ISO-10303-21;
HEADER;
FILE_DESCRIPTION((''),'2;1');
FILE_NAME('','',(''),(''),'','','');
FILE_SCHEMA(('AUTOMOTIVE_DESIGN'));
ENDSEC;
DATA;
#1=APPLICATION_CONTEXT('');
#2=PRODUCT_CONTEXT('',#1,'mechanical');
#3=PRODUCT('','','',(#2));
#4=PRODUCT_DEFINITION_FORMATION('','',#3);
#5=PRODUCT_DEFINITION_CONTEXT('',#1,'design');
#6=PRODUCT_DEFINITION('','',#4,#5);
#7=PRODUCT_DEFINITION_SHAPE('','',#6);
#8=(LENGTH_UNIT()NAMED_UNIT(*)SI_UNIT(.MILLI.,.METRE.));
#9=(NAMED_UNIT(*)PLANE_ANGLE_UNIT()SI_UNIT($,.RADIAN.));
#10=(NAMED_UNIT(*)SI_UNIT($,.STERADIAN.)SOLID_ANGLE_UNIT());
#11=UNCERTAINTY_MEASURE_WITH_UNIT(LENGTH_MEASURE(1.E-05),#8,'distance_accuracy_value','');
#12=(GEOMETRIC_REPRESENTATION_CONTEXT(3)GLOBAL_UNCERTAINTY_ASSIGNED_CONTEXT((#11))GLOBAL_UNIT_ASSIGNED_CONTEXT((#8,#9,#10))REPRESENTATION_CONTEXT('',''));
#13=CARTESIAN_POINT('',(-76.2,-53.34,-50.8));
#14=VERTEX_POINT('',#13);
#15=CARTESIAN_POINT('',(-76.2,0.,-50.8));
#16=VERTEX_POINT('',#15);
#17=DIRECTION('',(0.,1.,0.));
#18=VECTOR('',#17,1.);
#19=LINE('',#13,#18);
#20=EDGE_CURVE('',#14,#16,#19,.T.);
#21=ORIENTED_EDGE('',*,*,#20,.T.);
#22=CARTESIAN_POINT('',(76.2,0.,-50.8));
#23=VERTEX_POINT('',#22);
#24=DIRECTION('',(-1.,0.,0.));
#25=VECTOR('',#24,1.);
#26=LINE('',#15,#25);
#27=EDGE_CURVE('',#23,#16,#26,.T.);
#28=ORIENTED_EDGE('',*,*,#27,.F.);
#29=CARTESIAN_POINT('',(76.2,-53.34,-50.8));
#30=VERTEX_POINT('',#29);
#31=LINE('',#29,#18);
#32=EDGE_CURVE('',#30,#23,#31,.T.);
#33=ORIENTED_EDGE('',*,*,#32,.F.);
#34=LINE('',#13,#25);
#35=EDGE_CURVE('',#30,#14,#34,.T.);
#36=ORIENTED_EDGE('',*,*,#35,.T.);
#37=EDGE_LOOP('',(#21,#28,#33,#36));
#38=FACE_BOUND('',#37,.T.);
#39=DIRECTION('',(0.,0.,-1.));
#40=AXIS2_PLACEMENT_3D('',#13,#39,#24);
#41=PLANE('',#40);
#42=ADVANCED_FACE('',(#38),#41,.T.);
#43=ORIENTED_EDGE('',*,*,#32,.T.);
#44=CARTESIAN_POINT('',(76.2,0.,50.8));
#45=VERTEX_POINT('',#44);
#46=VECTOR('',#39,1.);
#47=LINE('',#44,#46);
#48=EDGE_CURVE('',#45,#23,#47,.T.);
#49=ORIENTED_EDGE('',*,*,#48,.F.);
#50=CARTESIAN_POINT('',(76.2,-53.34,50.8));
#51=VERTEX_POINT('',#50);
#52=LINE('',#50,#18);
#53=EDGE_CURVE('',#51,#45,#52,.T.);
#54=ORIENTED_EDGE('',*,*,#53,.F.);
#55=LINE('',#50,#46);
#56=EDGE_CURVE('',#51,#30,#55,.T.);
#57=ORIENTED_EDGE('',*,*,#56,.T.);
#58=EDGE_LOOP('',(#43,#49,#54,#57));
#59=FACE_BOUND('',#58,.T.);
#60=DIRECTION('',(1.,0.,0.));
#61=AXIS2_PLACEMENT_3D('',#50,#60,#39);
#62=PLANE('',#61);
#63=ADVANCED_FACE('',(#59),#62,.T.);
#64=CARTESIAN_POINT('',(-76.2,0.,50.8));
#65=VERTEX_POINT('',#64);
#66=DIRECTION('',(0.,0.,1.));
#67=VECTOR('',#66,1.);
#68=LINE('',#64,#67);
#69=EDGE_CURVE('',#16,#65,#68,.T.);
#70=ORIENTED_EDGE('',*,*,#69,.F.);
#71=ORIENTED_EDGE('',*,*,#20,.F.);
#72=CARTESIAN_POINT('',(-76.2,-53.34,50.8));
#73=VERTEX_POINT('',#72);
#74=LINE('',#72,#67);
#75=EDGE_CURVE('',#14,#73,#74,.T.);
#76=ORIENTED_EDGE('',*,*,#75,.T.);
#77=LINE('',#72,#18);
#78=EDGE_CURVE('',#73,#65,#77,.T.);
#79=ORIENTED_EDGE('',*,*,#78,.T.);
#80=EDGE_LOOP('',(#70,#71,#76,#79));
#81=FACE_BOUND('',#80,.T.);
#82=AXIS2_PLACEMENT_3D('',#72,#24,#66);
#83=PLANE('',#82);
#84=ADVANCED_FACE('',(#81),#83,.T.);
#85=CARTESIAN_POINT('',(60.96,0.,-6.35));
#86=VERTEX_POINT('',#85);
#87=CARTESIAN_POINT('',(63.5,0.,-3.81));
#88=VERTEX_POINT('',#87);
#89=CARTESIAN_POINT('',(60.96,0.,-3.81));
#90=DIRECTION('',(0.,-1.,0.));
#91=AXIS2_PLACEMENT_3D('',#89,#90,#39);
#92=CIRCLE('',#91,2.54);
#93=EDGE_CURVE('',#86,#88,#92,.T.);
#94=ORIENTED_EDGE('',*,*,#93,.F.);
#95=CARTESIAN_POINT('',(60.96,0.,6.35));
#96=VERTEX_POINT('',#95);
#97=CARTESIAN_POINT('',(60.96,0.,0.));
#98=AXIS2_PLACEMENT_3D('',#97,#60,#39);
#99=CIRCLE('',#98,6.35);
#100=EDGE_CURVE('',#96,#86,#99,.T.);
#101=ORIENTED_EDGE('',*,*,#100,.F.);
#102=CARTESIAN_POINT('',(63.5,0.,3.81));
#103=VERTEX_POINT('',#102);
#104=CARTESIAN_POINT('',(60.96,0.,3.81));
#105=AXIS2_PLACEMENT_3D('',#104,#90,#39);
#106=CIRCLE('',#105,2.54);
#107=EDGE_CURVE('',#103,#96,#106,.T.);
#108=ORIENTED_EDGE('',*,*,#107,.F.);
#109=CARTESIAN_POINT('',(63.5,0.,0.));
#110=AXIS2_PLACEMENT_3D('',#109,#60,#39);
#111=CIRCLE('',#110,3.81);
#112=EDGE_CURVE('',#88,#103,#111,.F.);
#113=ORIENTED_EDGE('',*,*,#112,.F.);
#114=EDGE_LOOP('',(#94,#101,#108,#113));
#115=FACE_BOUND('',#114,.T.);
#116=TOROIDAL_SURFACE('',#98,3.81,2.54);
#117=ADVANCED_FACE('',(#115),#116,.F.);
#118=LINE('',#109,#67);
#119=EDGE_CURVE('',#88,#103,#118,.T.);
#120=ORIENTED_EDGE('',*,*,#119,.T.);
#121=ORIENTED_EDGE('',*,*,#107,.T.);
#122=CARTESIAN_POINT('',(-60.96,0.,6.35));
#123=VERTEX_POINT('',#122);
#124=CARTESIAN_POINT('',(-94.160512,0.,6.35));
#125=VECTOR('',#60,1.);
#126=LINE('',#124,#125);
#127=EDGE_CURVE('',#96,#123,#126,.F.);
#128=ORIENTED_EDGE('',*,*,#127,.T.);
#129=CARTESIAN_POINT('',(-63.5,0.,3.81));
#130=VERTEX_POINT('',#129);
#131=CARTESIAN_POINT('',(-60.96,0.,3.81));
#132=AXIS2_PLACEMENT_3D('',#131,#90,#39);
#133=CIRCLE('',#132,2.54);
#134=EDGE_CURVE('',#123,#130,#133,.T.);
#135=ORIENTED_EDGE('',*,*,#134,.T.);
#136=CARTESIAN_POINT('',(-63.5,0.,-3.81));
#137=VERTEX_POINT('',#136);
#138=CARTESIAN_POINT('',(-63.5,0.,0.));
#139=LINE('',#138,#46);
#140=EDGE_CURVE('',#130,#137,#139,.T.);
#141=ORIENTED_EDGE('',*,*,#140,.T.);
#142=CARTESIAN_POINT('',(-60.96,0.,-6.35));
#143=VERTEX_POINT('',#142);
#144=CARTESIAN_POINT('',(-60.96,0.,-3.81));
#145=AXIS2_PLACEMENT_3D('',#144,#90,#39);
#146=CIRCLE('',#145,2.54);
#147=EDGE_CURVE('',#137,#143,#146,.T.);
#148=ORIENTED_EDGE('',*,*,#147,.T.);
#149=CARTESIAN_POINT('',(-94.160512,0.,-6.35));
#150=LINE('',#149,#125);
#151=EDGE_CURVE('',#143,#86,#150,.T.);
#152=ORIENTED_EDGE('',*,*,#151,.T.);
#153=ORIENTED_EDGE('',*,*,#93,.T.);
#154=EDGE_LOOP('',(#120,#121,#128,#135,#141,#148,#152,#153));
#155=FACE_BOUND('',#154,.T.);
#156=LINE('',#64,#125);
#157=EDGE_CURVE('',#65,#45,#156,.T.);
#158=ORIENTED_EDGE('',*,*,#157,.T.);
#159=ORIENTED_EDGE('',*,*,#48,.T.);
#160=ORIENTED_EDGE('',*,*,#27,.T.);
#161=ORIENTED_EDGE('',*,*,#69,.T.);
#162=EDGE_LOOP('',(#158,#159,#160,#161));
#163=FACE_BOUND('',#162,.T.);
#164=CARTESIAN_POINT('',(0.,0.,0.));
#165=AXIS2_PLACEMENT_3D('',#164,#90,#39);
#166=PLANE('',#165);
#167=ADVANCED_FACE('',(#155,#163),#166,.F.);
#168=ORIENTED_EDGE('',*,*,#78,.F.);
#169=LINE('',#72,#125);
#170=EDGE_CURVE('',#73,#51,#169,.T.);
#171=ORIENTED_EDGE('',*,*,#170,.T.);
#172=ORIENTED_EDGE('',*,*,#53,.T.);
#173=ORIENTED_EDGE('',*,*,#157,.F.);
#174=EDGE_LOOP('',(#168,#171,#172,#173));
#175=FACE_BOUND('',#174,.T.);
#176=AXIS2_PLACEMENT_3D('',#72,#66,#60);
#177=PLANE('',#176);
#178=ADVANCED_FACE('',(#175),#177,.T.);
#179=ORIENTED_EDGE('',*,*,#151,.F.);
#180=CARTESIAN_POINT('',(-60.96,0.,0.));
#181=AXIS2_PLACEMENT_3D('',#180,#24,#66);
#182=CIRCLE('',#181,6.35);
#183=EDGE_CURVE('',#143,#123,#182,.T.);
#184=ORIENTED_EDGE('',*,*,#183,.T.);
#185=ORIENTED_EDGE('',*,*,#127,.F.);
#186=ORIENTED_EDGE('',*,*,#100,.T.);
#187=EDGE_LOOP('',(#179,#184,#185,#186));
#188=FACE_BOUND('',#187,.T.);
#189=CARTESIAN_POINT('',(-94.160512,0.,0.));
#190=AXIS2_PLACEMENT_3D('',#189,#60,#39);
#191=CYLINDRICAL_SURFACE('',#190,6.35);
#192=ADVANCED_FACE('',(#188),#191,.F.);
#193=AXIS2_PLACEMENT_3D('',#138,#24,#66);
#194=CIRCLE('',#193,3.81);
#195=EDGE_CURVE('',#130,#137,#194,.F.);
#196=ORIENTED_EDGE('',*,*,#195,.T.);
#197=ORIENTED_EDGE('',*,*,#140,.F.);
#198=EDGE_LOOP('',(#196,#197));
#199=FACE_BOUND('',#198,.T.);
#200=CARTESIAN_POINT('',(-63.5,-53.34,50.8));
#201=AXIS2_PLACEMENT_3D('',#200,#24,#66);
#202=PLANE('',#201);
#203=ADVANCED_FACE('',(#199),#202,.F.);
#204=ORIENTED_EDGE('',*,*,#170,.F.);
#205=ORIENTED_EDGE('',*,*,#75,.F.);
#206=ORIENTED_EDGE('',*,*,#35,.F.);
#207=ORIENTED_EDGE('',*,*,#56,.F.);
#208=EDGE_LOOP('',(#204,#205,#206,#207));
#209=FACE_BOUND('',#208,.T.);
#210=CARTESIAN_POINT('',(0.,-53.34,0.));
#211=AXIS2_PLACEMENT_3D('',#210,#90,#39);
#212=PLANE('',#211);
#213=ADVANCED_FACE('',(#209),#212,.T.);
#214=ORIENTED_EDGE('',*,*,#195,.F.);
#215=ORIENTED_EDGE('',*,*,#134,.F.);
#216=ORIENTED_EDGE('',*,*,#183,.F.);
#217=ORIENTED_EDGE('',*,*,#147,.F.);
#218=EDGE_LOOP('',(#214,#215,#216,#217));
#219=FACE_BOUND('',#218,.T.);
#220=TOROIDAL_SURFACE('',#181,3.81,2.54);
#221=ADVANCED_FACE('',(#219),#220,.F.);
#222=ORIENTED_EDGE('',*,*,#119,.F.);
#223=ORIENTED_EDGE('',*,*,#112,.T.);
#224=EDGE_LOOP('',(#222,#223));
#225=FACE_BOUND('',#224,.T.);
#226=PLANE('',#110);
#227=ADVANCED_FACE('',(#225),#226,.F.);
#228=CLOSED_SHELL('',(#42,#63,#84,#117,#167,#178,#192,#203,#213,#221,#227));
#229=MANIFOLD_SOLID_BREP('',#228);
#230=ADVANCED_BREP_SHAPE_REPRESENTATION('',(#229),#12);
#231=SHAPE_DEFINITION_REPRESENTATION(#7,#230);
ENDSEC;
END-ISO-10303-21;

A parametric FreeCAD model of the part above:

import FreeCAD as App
import Part
import Sketcher

V = App.Vector
Q = App.Units.Quantity


def edges_at(feature, points):
    """Names of the edges that pass closest to the given points."""
    edges = feature.Shape.Edges
    near = lambda p: min(range(len(edges)), key=lambda i: edges[i].distToShape(Part.Vertex(*p))[0])
    return sorted({f"Edge{near(p) + 1}" for p in points})


def add_polygon(sketch, points):
    """Adds a closed chain of lines whose ends are joined by coincident constraints."""
    first, n = sketch.GeometryCount, len(points)
    for a, b in zip(points, points[1:] + points[:1]):
        sketch.addGeometry(Part.LineSegment(App.Vector(*a, 0), App.Vector(*b, 0)), False)
    for i in range(n):
        sketch.addConstraint(Sketcher.Constraint("Coincident", first + i, 2, first + (i + 1) % n, 1))

doc = App.newDocument("Part")
body = doc.addObject("PartDesign::Body", "Body")

# Sketch on XZ plane
sketch1 = body.newObject("Sketcher::SketchObject", "Sketch")
sketch1.AttachmentSupport = (doc.getObject("XZ_Plane"), [""])
sketch1.MapMode = "FlatFace"
add_polygon(sketch1, [(-76, -51), (-76, 51), (76, 51), (76, -51)])  # lines 0-3
sketch1.addConstraint(Sketcher.Constraint("Vertical", 0))
sketch1.addConstraint(Sketcher.Constraint("Horizontal", 1))
sketch1.addConstraint(Sketcher.Constraint("Vertical", 2))
sketch1.addConstraint(Sketcher.Constraint("Horizontal", 3))
sketch1.addConstraint(Sketcher.Constraint("Symmetric", 0, 2, 2, 2, -1, 1))
sketch1.addConstraint(Sketcher.Constraint("DistanceX", 1, 1, 1, 2, Q("6 in")))
sketch1.addConstraint(Sketcher.Constraint("DistanceY", 0, 1, 0, 2, Q("4 in")))
pad1 = body.newObject("PartDesign::Pad", "Pad")
pad1.Profile = sketch1
pad1.Length = Q("2.1 in")

# Sketch on YZ plane
sketch2 = body.newObject("Sketcher::SketchObject", "Sketch001")
sketch2.AttachmentSupport = (doc.getObject("YZ_Plane"), [""])
sketch2.MapMode = "FlatFace"
sketch2.AttachmentOffset = App.Placement(V(0, 0, 2.5 * 25.4), App.Rotation())
sketch2.addGeometry(Part.Circle(V(0, 0, 0), V(0, 0, 1), 6), False)
sketch2.addConstraint(Sketcher.Constraint("Coincident", 0, 3, -1, 1))
sketch2.addConstraint(Sketcher.Constraint("Diameter", 0, Q("0.5 in")))
pocket1 = body.newObject("PartDesign::Pocket", "Pocket")
pocket1.Profile = sketch2
pocket1.Length = Q("5 in")
doc.recompute()

fillet = body.newObject("PartDesign::Fillet", "Fillet")
fillet.Base = (pocket1, edges_at(pocket1, [(63.5, -6.35, 0), (-63.5, -6.35, 0)]))
fillet.Radius = Q("0.1 in")

doc.recompute()
